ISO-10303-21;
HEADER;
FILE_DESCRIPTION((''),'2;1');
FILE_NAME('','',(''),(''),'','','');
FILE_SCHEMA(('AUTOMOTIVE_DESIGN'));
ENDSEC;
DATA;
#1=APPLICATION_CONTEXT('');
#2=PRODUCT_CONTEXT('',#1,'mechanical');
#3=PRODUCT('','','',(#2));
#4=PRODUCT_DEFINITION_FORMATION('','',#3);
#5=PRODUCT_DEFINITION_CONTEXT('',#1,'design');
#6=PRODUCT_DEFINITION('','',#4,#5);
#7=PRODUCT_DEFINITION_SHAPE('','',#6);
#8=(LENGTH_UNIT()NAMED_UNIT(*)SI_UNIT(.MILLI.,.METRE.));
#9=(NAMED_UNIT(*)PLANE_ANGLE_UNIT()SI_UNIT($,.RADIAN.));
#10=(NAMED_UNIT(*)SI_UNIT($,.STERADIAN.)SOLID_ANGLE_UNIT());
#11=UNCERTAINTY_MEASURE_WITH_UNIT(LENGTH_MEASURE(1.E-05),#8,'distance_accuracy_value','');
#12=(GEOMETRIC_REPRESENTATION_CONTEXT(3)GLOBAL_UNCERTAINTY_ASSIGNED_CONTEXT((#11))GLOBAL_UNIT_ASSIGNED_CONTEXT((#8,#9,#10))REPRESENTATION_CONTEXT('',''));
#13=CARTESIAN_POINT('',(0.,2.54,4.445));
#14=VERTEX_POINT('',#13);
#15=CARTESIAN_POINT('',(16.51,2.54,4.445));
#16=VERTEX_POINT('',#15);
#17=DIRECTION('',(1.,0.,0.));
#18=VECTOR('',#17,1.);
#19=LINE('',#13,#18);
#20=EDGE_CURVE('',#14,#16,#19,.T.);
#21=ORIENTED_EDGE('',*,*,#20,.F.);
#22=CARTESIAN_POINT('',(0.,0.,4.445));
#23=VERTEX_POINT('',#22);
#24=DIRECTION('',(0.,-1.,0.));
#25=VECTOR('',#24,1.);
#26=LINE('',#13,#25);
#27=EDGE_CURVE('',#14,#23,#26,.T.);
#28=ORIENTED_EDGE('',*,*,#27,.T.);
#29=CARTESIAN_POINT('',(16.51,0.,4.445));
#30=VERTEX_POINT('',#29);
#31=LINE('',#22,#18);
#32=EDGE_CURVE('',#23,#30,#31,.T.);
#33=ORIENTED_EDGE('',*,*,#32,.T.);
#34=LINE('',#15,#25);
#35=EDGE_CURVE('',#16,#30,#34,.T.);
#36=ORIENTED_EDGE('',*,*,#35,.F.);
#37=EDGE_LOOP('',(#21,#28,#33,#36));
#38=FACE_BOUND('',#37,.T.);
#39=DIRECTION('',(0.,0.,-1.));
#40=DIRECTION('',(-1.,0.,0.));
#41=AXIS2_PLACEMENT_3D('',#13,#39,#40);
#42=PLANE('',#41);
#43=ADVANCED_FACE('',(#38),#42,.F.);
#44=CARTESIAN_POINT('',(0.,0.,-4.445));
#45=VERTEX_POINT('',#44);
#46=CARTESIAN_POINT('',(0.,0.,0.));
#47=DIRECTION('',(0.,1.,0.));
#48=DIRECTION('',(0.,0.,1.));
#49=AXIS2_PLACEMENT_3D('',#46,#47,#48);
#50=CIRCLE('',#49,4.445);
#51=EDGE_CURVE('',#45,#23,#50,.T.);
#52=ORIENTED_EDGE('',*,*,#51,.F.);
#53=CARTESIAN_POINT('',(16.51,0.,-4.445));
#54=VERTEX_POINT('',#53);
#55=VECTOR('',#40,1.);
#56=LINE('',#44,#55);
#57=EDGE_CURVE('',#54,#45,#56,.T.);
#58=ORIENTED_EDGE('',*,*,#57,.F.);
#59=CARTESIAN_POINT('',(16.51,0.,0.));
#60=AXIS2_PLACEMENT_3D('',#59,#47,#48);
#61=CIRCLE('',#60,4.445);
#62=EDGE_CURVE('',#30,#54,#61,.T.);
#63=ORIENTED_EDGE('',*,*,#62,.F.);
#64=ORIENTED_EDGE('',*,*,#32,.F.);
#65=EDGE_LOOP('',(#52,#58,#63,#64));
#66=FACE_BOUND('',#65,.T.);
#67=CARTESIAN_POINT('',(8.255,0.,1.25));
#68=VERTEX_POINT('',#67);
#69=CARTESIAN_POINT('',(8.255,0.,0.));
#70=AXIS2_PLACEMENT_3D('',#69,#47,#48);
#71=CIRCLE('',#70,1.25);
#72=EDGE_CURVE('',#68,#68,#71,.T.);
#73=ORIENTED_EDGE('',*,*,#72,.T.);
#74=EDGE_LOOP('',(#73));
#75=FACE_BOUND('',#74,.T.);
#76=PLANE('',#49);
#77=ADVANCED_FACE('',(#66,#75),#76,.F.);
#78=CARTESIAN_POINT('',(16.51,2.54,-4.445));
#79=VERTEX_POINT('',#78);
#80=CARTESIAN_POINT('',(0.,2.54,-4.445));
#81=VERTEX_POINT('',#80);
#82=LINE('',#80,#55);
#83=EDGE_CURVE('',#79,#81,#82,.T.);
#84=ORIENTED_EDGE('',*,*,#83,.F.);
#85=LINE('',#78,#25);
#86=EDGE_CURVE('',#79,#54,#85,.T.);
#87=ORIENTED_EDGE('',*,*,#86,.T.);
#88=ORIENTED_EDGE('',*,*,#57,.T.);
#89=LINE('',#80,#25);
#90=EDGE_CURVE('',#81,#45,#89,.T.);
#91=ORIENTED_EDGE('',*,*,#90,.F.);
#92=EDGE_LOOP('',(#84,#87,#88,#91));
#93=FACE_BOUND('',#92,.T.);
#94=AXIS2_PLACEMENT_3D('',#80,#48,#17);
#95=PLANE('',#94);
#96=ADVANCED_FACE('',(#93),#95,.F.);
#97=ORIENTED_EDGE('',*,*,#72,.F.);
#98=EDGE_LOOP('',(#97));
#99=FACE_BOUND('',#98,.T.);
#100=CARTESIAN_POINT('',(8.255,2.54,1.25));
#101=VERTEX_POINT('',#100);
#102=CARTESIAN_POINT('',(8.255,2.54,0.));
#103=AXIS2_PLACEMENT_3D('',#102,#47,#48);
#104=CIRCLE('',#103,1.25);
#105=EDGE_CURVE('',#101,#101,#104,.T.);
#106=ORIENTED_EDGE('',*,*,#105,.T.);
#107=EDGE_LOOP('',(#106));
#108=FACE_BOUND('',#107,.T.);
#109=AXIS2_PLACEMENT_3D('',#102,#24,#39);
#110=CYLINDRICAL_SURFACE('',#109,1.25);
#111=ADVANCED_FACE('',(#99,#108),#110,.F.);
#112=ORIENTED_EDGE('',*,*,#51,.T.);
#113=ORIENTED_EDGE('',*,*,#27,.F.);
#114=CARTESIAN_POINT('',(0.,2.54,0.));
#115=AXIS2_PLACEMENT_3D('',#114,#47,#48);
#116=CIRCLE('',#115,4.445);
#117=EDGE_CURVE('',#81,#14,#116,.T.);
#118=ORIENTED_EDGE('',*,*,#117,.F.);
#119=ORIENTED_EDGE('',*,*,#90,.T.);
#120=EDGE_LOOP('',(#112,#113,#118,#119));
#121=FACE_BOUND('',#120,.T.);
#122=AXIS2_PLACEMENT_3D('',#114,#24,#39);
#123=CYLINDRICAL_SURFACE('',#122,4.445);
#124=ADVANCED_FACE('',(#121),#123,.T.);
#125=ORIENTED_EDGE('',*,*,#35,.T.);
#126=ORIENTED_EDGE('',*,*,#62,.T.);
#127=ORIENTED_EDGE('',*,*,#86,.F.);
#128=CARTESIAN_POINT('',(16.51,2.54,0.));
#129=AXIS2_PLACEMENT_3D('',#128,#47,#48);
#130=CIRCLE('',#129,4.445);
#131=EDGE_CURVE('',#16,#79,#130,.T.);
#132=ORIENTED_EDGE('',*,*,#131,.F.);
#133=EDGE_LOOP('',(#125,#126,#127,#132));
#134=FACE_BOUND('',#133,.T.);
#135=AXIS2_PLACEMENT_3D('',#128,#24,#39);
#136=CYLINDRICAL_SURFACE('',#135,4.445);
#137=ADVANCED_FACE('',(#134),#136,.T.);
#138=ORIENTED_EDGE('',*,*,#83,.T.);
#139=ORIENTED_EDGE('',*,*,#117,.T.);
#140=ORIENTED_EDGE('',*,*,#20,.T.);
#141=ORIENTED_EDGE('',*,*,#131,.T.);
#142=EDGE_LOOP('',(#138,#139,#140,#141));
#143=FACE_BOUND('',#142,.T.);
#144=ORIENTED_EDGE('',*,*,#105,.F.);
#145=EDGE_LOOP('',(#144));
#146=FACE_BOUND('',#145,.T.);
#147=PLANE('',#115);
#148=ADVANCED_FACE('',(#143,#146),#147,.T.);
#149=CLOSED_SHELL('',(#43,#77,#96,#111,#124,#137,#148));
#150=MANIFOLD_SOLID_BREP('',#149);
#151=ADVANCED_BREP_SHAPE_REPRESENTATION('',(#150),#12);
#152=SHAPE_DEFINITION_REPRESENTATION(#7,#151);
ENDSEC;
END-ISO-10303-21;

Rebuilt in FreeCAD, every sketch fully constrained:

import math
import FreeCAD as App
import Part
import Sketcher
Q = App.Units.Quantity

doc = App.newDocument("Part")
params = doc.addObject("Spreadsheet::Sheet", "Params")
for row, (alias, value) in enumerate([
    ("sketch1_radius", "0.175 in"),
    ("sketch1_width", "0.65 in"),
    ("pad1_length", "0.1 in"),
], start=1):
    params.set(f"A{row}", alias)
    params.set(f"B{row}", "=" + value)
    params.setAlias(f"B{row}", alias)

body = doc.addObject("PartDesign::Body", "Body")

# Sketch on XZ plane
sketch1 = body.newObject("Sketcher::SketchObject", "Sketch")
sketch1.AttachmentSupport = (doc.getObject("XZ_Plane"), [""])
sketch1.MapMode = "FlatFace"
sketch1.addGeometry(Part.LineSegment(App.Vector(16.51, -4.445, 0), App.Vector(0, -4.445, 0)), False)
sketch1.addGeometry(Part.ArcOfCircle(Part.Circle(App.Vector(0, 0, 0), App.Vector(0, 0, 1), 4.445), math.radians(90), math.radians(270)), False)
sketch1.addGeometry(Part.LineSegment(App.Vector(0, 4.445, 0), App.Vector(16.51, 4.445, 0)), False)
sketch1.addGeometry(Part.ArcOfCircle(Part.Circle(App.Vector(16.51, 0, 0), App.Vector(0, 0, 1), 4.445), math.radians(-90), math.radians(90)), False)
sketch1.addGeometry(Part.Circle(App.Vector(8.255, 0, 0), App.Vector(0, 0, 1), 1.25), False)
sketch1.addConstraint(Sketcher.Constraint("Tangent", 0, 2, 1, 2))
sketch1.addConstraint(Sketcher.Constraint("Tangent", 1, 1, 2, 1))
sketch1.addConstraint(Sketcher.Constraint("Tangent", 2, 2, 3, 2))
sketch1.addConstraint(Sketcher.Constraint("Tangent", 3, 1, 0, 1))
sketch1.addConstraint(Sketcher.Constraint("Horizontal", 0))
sketch1.addConstraint(Sketcher.Constraint("Horizontal", 2))
sketch1.addConstraint(Sketcher.Constraint("Coincident", 1, 3, -1, 1))
sketch1.addConstraint(Sketcher.Constraint("PointOnObject", 4, 3, -1))
sketch1.addConstraint(Sketcher.Constraint("Radius", 1, Q("0.175 in")))
sketch1.addConstraint(Sketcher.Constraint("DistanceX", 0, 2, 0, 1, Q("0.65 in")))
sketch1.addConstraint(Sketcher.Constraint("Diameter", 4, 2.5))
sketch1.addConstraint(Sketcher.Constraint("DistanceX", -1, 1, 4, 3, Q("0.325 in")))
sketch1.setExpression("Constraints[8]", "Params.sketch1_radius")
sketch1.setExpression("Constraints[9]", "Params.sketch1_width")
pad1 = body.newObject("PartDesign::Pad", "Pad")
pad1.Profile = sketch1
pad1.setExpression("Length", "Params.pad1_length")
pad1.Reversed = True

doc.recompute()
